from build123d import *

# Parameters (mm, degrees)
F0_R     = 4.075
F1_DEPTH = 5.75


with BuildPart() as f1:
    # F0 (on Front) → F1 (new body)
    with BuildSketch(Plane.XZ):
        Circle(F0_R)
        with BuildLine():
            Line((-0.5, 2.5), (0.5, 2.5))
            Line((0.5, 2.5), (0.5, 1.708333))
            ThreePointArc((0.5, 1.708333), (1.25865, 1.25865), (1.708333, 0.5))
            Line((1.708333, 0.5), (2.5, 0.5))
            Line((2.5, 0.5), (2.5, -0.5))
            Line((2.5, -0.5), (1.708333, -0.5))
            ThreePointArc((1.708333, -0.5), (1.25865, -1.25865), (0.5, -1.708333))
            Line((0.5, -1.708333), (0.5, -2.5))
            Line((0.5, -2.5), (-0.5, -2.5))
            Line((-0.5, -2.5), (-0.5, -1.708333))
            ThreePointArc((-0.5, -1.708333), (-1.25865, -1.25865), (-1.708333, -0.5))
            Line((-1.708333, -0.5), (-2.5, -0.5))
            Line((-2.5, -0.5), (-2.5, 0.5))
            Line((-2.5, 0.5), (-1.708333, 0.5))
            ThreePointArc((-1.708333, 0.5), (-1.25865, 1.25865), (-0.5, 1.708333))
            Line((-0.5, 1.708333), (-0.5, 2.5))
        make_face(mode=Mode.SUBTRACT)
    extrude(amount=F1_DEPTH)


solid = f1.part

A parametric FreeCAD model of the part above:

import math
import FreeCAD as App
import Part
import Sketcher
Q = App.Units.Quantity

doc = App.newDocument("Part")
body = doc.addObject("PartDesign::Body", "Body")

# Sketch on XZ plane
sketch1 = doc.addObject("Sketcher::SketchObject", "Sketch")
body.addObject(sketch1)
sketch1.AttachmentSupport = (doc.XZ_Plane, [""])
sketch1.MapMode = "FlatFace"
sketch1.addGeometry([
    Part.Circle(App.Vector(0, 0, 0), App.Vector(0, 0, 1), 4.1),  # 0
    Part.LineSegment(App.Vector(-0.5, 1.7, 0), App.Vector(-0.5, 2.5, 0)),  # 1
    Part.LineSegment(App.Vector(-0.5, 2.5, 0), App.Vector(0.5, 2.5, 0)),  # 2
    Part.LineSegment(App.Vector(0.5, 2.5, 0), App.Vector(0.5, 1.7, 0)),  # 3
    Part.ArcOfCircle(Part.Circle(App.Vector(0, 0, 0), App.Vector(0, 0, 1), 1.8), math.radians(16), math.radians(74)),  # 4
    Part.LineSegment(App.Vector(1.7, 0.5, 0), App.Vector(2.5, 0.5, 0)),  # 5
    Part.LineSegment(App.Vector(2.5, 0.5, 0), App.Vector(2.5, -0.5, 0)),  # 6
    Part.LineSegment(App.Vector(2.5, -0.5, 0), App.Vector(1.7, -0.5, 0)),  # 7
    Part.ArcOfCircle(Part.Circle(App.Vector(0, 0, 0), App.Vector(0, 0, 1), 1.8), math.radians(-74), math.radians(-16)),  # 8
    Part.LineSegment(App.Vector(0.5, -1.7, 0), App.Vector(0.5, -2.5, 0)),  # 9
    Part.LineSegment(App.Vector(0.5, -2.5, 0), App.Vector(-0.5, -2.5, 0)),  # 10
    Part.LineSegment(App.Vector(-0.5, -2.5, 0), App.Vector(-0.5, -1.7, 0)),  # 11
    Part.ArcOfCircle(Part.Circle(App.Vector(0, 0, 0), App.Vector(0, 0, 1), 1.8), math.radians(-164), math.radians(-106)),  # 12
    Part.LineSegment(App.Vector(-1.7, -0.5, 0), App.Vector(-2.5, -0.5, 0)),  # 13
    Part.LineSegment(App.Vector(-2.5, -0.5, 0), App.Vector(-2.5, 0.5, 0)),  # 14
    Part.LineSegment(App.Vector(-2.5, 0.5, 0), App.Vector(-1.7, 0.5, 0)),  # 15
    Part.ArcOfCircle(Part.Circle(App.Vector(0, 0, 0), App.Vector(0, 0, 1), 1.8), math.radians(106), math.radians(164)),  # 16
], False)
sketch1.addConstraint([
    Sketcher.Constraint("Coincident", 1, 2, 2, 1),
    Sketcher.Constraint("Coincident", 2, 2, 3, 1),
    Sketcher.Constraint("Coincident", 3, 2, 4, 2),
    Sketcher.Constraint("Coincident", 4, 1, 5, 1),
    Sketcher.Constraint("Coincident", 5, 2, 6, 1),
    Sketcher.Constraint("Coincident", 6, 2, 7, 1),
    Sketcher.Constraint("Coincident", 7, 2, 8, 2),
    Sketcher.Constraint("Coincident", 8, 1, 9, 1),
    Sketcher.Constraint("Coincident", 9, 2, 10, 1),
    Sketcher.Constraint("Coincident", 10, 2, 11, 1),
    Sketcher.Constraint("Coincident", 11, 2, 12, 2),
    Sketcher.Constraint("Coincident", 12, 1, 13, 1),
    Sketcher.Constraint("Coincident", 13, 2, 14, 1),
    Sketcher.Constraint("Coincident", 14, 2, 15, 1),
    Sketcher.Constraint("Coincident", 15, 2, 16, 2),
    Sketcher.Constraint("Coincident", 16, 1, 1, 1),
    Sketcher.Constraint("Vertical", 1),
    Sketcher.Constraint("Horizontal", 2),
    Sketcher.Constraint("Vertical", 3),
    Sketcher.Constraint("Horizontal", 5),
    Sketcher.Constraint("Vertical", 6),
    Sketcher.Constraint("Horizontal", 7),
    Sketcher.Constraint("Vertical", 9),
    Sketcher.Constraint("Horizontal", 10),
    Sketcher.Constraint("Vertical", 11),
    Sketcher.Constraint("Horizontal", 13),
    Sketcher.Constraint("Vertical", 14),
    Sketcher.Constraint("Horizontal", 15),
    Sketcher.Constraint("Coincident", 0, 3, -1, 1),
    Sketcher.Constraint("Coincident", 4, 3, -1, 1),
    Sketcher.Constraint("Coincident", 8, 3, -1, 1),
    Sketcher.Constraint("Coincident", 12, 3, -1, 1),
    Sketcher.Constraint("Coincident", 16, 3, -1, 1),
    Sketcher.Constraint("Equal", 4, 8),
    Sketcher.Constraint("Equal", 8, 12),
    Sketcher.Constraint("Equal", 12, 16),
    Sketcher.Constraint("Symmetric", 1, 2, 9, 2, -1, 1),
    Sketcher.Constraint("Symmetric", 5, 2, 13, 2, -1, 1),
    Sketcher.Constraint("Horizontal", 8, 1, 11, 2),
    Sketcher.Constraint("Horizontal", 7, 2, 12, 1),
    Sketcher.Constraint("Horizontal", 5, 2, 14, 2),
    Sketcher.Constraint("Horizontal", 3, 2, 16, 1),
    Sketcher.Constraint("Equal", 15, 1),
    Sketcher.Constraint("Equal", 10, 6),
    Sketcher.Constraint("Diameter", 0, Q("8.15 mm")),
    Sketcher.Constraint("DistanceX", 2, 1, 2, 2, Q("1 mm")),
    Sketcher.Constraint("DistanceX", 3, 2, 5, 2, Q("2 mm")),
    Sketcher.Constraint("Radius", 4, Q("1.780004 mm")),
])
pad1 = doc.addObject("PartDesign::Pad", "Pad")
body.addObject(pad1)
pad1.Profile = sketch1
pad1.Length = 5.75

doc.recompute()
